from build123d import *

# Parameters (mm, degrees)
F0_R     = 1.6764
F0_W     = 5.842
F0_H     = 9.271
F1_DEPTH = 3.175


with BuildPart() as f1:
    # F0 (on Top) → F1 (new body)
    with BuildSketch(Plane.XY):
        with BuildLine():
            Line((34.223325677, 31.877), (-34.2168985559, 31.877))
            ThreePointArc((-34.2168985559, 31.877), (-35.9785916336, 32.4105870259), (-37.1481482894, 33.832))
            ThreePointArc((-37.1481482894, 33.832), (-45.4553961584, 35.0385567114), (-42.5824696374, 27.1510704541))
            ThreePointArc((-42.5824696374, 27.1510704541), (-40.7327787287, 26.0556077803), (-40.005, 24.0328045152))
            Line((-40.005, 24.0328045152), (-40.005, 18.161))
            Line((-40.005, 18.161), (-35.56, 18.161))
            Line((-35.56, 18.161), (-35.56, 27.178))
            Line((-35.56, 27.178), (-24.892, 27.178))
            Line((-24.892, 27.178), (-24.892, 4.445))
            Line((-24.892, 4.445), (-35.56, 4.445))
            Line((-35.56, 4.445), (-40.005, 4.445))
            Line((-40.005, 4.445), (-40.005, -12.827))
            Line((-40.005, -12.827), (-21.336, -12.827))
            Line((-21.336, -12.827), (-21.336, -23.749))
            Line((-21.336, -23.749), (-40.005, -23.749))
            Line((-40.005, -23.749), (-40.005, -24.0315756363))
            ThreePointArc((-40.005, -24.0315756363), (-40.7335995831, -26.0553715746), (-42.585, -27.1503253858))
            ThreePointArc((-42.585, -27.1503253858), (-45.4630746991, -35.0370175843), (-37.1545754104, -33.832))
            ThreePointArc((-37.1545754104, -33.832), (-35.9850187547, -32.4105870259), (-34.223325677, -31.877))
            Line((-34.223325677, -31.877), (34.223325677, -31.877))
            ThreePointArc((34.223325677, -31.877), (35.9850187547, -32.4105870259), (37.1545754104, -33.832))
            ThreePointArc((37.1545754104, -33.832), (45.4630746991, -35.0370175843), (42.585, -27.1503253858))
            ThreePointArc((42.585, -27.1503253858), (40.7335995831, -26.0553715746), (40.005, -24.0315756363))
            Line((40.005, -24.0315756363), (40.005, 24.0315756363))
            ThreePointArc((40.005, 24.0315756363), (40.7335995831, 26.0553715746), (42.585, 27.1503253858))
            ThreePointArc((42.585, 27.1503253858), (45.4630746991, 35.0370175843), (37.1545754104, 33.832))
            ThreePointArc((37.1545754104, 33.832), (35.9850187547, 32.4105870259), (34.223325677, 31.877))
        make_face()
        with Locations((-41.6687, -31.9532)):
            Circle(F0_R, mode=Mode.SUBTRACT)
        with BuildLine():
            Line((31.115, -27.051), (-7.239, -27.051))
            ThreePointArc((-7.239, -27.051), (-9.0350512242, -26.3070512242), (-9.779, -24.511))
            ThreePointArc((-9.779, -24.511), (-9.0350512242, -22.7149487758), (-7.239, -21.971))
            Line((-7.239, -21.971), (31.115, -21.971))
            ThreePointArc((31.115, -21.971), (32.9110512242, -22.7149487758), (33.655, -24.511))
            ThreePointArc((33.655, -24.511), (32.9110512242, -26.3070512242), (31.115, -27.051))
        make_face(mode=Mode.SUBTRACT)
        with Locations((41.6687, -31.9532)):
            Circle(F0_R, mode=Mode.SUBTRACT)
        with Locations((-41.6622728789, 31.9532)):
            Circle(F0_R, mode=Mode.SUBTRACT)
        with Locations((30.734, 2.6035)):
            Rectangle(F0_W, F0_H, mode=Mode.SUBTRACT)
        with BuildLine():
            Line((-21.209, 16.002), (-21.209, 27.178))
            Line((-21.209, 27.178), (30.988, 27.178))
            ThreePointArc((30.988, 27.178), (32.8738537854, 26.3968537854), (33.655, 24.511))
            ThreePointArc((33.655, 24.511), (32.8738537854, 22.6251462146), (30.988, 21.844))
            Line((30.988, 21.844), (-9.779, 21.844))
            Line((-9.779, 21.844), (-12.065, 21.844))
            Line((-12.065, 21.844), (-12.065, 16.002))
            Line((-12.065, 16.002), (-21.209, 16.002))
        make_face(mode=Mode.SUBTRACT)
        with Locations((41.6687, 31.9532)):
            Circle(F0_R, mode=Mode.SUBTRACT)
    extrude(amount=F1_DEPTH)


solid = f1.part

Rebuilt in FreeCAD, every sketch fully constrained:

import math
import FreeCAD as App
import Part
import Sketcher

V = App.Vector
Q = App.Units.Quantity


def add_polygon(sketch, points):
    """Adds a closed chain of lines whose ends are joined by coincident constraints."""
    first, n = sketch.GeometryCount, len(points)
    for a, b in zip(points, points[1:] + points[:1]):
        sketch.addGeometry(Part.LineSegment(App.Vector(*a, 0), App.Vector(*b, 0)), False)
    for i in range(n):
        sketch.addConstraint(Sketcher.Constraint("Coincident", first + i, 2, first + (i + 1) % n, 1))

doc = App.newDocument("Part")
params = doc.addObject("Spreadsheet::Sheet", "Params")
for row, (alias, value) in enumerate([
    ("sketch1_radius", "0.1 in"),
    ("sketch1_diameter", "0.132 in"),
    ("sketch1_radius2", "0.125 in"),
    ("sketch1_radius3", "0.105 in"),
    ("sketch1_width", "0.42 in"),
    ("pad1_length", "0.125 in"),
], start=1):
    params.set(f"A{row}", alias)
    params.set(f"B{row}", "=" + value)
    params.setAlias(f"B{row}", alias)

body = doc.addObject("PartDesign::Body", "Body")

# Sketch on XY plane
sketch1 = body.newObject("Sketcher::SketchObject", "Sketch")
sketch1.AttachmentSupport = (doc.getObject("XY_Plane"), [""])
sketch1.MapMode = "FlatFace"
sketch1.addGeometry(Part.LineSegment(V(34.223326, 31.877, 0), V(-34.216899, 31.877, 0)), False)  # 0
sketch1.addGeometry(Part.ArcOfCircle(Part.Circle(V(-34.216899, 35.052, 0), V(0, 0, 1), 3.175), math.radians(-157.402691), math.radians(-90)), False)  # 1
sketch1.addGeometry(Part.ArcOfCircle(Part.Circle(V(-41.662273, 31.9532, 0), V(0, 0, 1), 4.8895), math.radians(22.597309), math.radians(259.152328)), False)  # 2
sketch1.addGeometry(Part.ArcOfCircle(Part.Circle(V(-43.18, 24.032805, 0), V(0, 0, 1), 3.175), math.radians(0), math.radians(79.152328)), False)  # 3
sketch1.addGeometry(Part.LineSegment(V(-40.005, 24.032805, 0), V(-40.005, 18.161, 0)), False)  # 4
sketch1.addGeometry(Part.LineSegment(V(-40.005, 18.161, 0), V(-35.56, 18.161, 0)), False)  # 5
sketch1.addGeometry(Part.LineSegment(V(-35.56, 18.161, 0), V(-35.56, 27.178, 0)), False)  # 6
sketch1.addGeometry(Part.LineSegment(V(-35.56, 27.178, 0), V(-24.892, 27.178, 0)), False)  # 7
sketch1.addGeometry(Part.LineSegment(V(-24.892, 27.178, 0), V(-24.892, 4.445, 0)), False)  # 8
sketch1.addGeometry(Part.LineSegment(V(-24.892, 4.445, 0), V(-40.005, 4.445, 0)), False)  # 9
sketch1.addGeometry(Part.LineSegment(V(-40.005, 4.445, 0), V(-40.005, -12.827, 0)), False)  # 10
sketch1.addGeometry(Part.LineSegment(V(-40.005, -12.827, 0), V(-21.336, -12.827, 0)), False)  # 11
sketch1.addGeometry(Part.LineSegment(V(-21.336, -12.827, 0), V(-21.336, -23.749, 0)), False)  # 12
sketch1.addGeometry(Part.LineSegment(V(-21.336, -23.749, 0), V(-40.005, -23.749, 0)), False)  # 13
sketch1.addGeometry(Part.LineSegment(V(-40.005, -23.749, 0), V(-40.005, -24.031576, 0)), False)  # 14
sketch1.addGeometry(Part.ArcOfCircle(Part.Circle(V(-43.18, -24.031576, 0), V(0, 0, 1), 3.175), math.radians(-79.198818), math.radians(0)), False)  # 15
sketch1.addGeometry(Part.ArcOfCircle(Part.Circle(V(-41.6687, -31.9532, 0), V(0, 0, 1), 4.8895), math.radians(100.801182), math.radians(337.402691)), False)  # 16
sketch1.addGeometry(Part.ArcOfCircle(Part.Circle(V(-34.223326, -35.052, 0), V(0, 0, 1), 3.175), math.radians(90), math.radians(157.402691)), False)  # 17
sketch1.addGeometry(Part.LineSegment(V(-34.223326, -31.877, 0), V(34.223326, -31.877, 0)), False)  # 18
sketch1.addGeometry(Part.ArcOfCircle(Part.Circle(V(34.223326, -35.052, 0), V(0, 0, 1), 3.175), math.radians(22.597309), math.radians(90)), False)  # 19
sketch1.addGeometry(Part.ArcOfCircle(Part.Circle(V(41.6687, -31.9532, 0), V(0, 0, 1), 4.8895), math.radians(-157.402691), math.radians(79.198818)), False)  # 20
sketch1.addGeometry(Part.ArcOfCircle(Part.Circle(V(43.18, -24.031576, 0), V(0, 0, 1), 3.175), math.radians(180), math.radians(259.198818)), False)  # 21
sketch1.addGeometry(Part.LineSegment(V(40.005, -24.031576, 0), V(40.005, 24.031576, 0)), False)  # 22
sketch1.addGeometry(Part.ArcOfCircle(Part.Circle(V(43.18, 24.031576, 0), V(0, 0, 1), 3.175), math.radians(100.801182), math.radians(180)), False)  # 23
sketch1.addGeometry(Part.ArcOfCircle(Part.Circle(V(41.6687, 31.9532, 0), V(0, 0, 1), 4.8895), math.radians(-79.198818), math.radians(157.402691)), False)  # 24
sketch1.addGeometry(Part.ArcOfCircle(Part.Circle(V(34.223326, 35.052, 0), V(0, 0, 1), 3.175), math.radians(-90), math.radians(-22.597309)), False)  # 25
sketch1.addGeometry(Part.Circle(V(-41.6687, -31.9532, 0), V(0, 0, 1), 1.6764), False)  # 26
sketch1.addGeometry(Part.ArcOfCircle(Part.Circle(V(31.115, -24.511, 0), V(0, 0, 1), 2.54), math.radians(-90), math.radians(0)), False)  # 27
sketch1.addGeometry(Part.LineSegment(V(31.115, -27.051, 0), V(-7.239, -27.051, 0)), False)  # 28
sketch1.addGeometry(Part.ArcOfCircle(Part.Circle(V(-7.239, -24.511, 0), V(0, 0, 1), 2.54), math.radians(180), math.radians(270)), False)  # 29
sketch1.addGeometry(Part.ArcOfCircle(Part.Circle(V(-7.239, -24.511, 0), V(0, 0, 1), 2.54), math.radians(90), math.radians(180)), False)  # 30
sketch1.addGeometry(Part.LineSegment(V(-7.239, -21.971, 0), V(31.115, -21.971, 0)), False)  # 31
sketch1.addGeometry(Part.ArcOfCircle(Part.Circle(V(31.115, -24.511, 0), V(0, 0, 1), 2.54), math.radians(0), math.radians(90)), False)  # 32
sketch1.addGeometry(Part.Circle(V(41.6687, -31.9532, 0), V(0, 0, 1), 1.6764), False)  # 33
sketch1.addGeometry(Part.Circle(V(-41.662273, 31.9532, 0), V(0, 0, 1), 1.6764), False)  # 34
add_polygon(sketch1, [(33.655, -2.032), (27.813, -2.032), (27.813, 7.239), (33.655, 7.239)])  # lines 35-38
sketch1.addGeometry(Part.LineSegment(V(-12.065, 16.002, 0), V(-21.209, 16.002, 0)), False)  # 39
sketch1.addGeometry(Part.LineSegment(V(-21.209, 16.002, 0), V(-21.209, 27.178, 0)), False)  # 40
sketch1.addGeometry(Part.LineSegment(V(-21.209, 27.178, 0), V(30.988, 27.178, 0)), False)  # 41
sketch1.addGeometry(Part.ArcOfCircle(Part.Circle(V(30.988, 24.511, 0), V(0, 0, 1), 2.667), math.radians(0), math.radians(90)), False)  # 42
sketch1.addGeometry(Part.ArcOfCircle(Part.Circle(V(30.988, 24.511, 0), V(0, 0, 1), 2.667), math.radians(-90), math.radians(0)), False)  # 43
sketch1.addGeometry(Part.LineSegment(V(30.988, 21.844, 0), V(-12.065, 21.844, 0)), False)  # 44
sketch1.addGeometry(Part.LineSegment(V(-12.065, 21.844, 0), V(-12.065, 16.002, 0)), False)  # 45
sketch1.addGeometry(Part.Circle(V(41.6687, 31.9532, 0), V(0, 0, 1), 1.6764), False)  # 46
sketch1.addConstraint(Sketcher.Constraint("Tangent", 0, 2, 1, 2))
sketch1.addConstraint(Sketcher.Constraint("Tangent", 1, 1, 2, 1))
sketch1.addConstraint(Sketcher.Constraint("Tangent", 2, 2, 3, 2))
sketch1.addConstraint(Sketcher.Constraint("Tangent", 3, 1, 4, 1))
sketch1.addConstraint(Sketcher.Constraint("Coincident", 4, 2, 5, 1))
sketch1.addConstraint(Sketcher.Constraint("Coincident", 5, 2, 6, 1))
sketch1.addConstraint(Sketcher.Constraint("Coincident", 6, 2, 7, 1))
sketch1.addConstraint(Sketcher.Constraint("Coincident", 7, 2, 8, 1))
sketch1.addConstraint(Sketcher.Constraint("Coincident", 8, 2, 9, 1))
sketch1.addConstraint(Sketcher.Constraint("Coincident", 9, 2, 10, 1))
sketch1.addConstraint(Sketcher.Constraint("Coincident", 10, 2, 11, 1))
sketch1.addConstraint(Sketcher.Constraint("Coincident", 11, 2, 12, 1))
sketch1.addConstraint(Sketcher.Constraint("Coincident", 12, 2, 13, 1))
sketch1.addConstraint(Sketcher.Constraint("Coincident", 13, 2, 14, 1))
sketch1.addConstraint(Sketcher.Constraint("Tangent", 14, 2, 15, 2))
sketch1.addConstraint(Sketcher.Constraint("Tangent", 15, 1, 16, 1))
sketch1.addConstraint(Sketcher.Constraint("Tangent", 16, 2, 17, 2))
sketch1.addConstraint(Sketcher.Constraint("Tangent", 17, 1, 18, 1))
sketch1.addConstraint(Sketcher.Constraint("Tangent", 18, 2, 19, 2))
sketch1.addConstraint(Sketcher.Constraint("Tangent", 19, 1, 20, 1))
sketch1.addConstraint(Sketcher.Constraint("Tangent", 20, 2, 21, 2))
sketch1.addConstraint(Sketcher.Constraint("Tangent", 21, 1, 22, 1))
sketch1.addConstraint(Sketcher.Constraint("Tangent", 22, 2, 23, 2))
sketch1.addConstraint(Sketcher.Constraint("Tangent", 23, 1, 24, 1))
sketch1.addConstraint(Sketcher.Constraint("Tangent", 24, 2, 25, 2))
sketch1.addConstraint(Sketcher.Constraint("Tangent", 25, 1, 0, 1))
sketch1.addConstraint(Sketcher.Constraint("Tangent", 27, 1, 28, 1))
sketch1.addConstraint(Sketcher.Constraint("Tangent", 28, 2, 29, 2))
sketch1.addConstraint(Sketcher.Constraint("Tangent", 29, 1, 30, 2))
sketch1.addConstraint(Sketcher.Constraint("Tangent", 30, 1, 31, 1))
sketch1.addConstraint(Sketcher.Constraint("Tangent", 31, 2, 32, 2))
sketch1.addConstraint(Sketcher.Constraint("Tangent", 32, 1, 27, 2))
sketch1.addConstraint(Sketcher.Constraint("Coincident", 39, 2, 40, 1))
sketch1.addConstraint(Sketcher.Constraint("Coincident", 40, 2, 41, 1))
sketch1.addConstraint(Sketcher.Constraint("Tangent", 41, 2, 42, 2))
sketch1.addConstraint(Sketcher.Constraint("Tangent", 42, 1, 43, 2))
sketch1.addConstraint(Sketcher.Constraint("Tangent", 43, 1, 44, 1))
sketch1.addConstraint(Sketcher.Constraint("Coincident", 44, 2, 45, 1))
sketch1.addConstraint(Sketcher.Constraint("Coincident", 45, 2, 39, 1))
sketch1.addConstraint(Sketcher.Constraint("Horizontal", 0))
sketch1.addConstraint(Sketcher.Constraint("Vertical", 4))
sketch1.addConstraint(Sketcher.Constraint("Horizontal", 5))
sketch1.addConstraint(Sketcher.Constraint("Vertical", 6))
sketch1.addConstraint(Sketcher.Constraint("Horizontal", 7))
sketch1.addConstraint(Sketcher.Constraint("Vertical", 8))
sketch1.addConstraint(Sketcher.Constraint("Horizontal", 9))
sketch1.addConstraint(Sketcher.Constraint("Vertical", 10))
sketch1.addConstraint(Sketcher.Constraint("Horizontal", 11))
sketch1.addConstraint(Sketcher.Constraint("Vertical", 12))
sketch1.addConstraint(Sketcher.Constraint("Horizontal", 13))
sketch1.addConstraint(Sketcher.Constraint("Vertical", 14))
sketch1.addConstraint(Sketcher.Constraint("Horizontal", 18))
sketch1.addConstraint(Sketcher.Constraint("Vertical", 22))
sketch1.addConstraint(Sketcher.Constraint("Horizontal", 28))
sketch1.addConstraint(Sketcher.Constraint("Horizontal", 31))
sketch1.addConstraint(Sketcher.Constraint("Horizontal", 35))
sketch1.addConstraint(Sketcher.Constraint("Vertical", 36))
sketch1.addConstraint(Sketcher.Constraint("Horizontal", 37))
sketch1.addConstraint(Sketcher.Constraint("Vertical", 38))
sketch1.addConstraint(Sketcher.Constraint("Horizontal", 39))
sketch1.addConstraint(Sketcher.Constraint("Vertical", 40))
sketch1.addConstraint(Sketcher.Constraint("Horizontal", 41))
sketch1.addConstraint(Sketcher.Constraint("Horizontal", 44))
sketch1.addConstraint(Sketcher.Constraint("Vertical", 45))
sketch1.addConstraint(Sketcher.Constraint("Coincident", 26, 3, 16, 3))
sketch1.addConstraint(Sketcher.Constraint("Coincident", 33, 3, 20, 3))
sketch1.addConstraint(Sketcher.Constraint("Coincident", 34, 3, 2, 3))
sketch1.addConstraint(Sketcher.Constraint("Coincident", 46, 3, 24, 3))
sketch1.addConstraint(Sketcher.Constraint("Equal", 1, 3))
sketch1.addConstraint(Sketcher.Constraint("Equal", 3, 15))
sketch1.addConstraint(Sketcher.Constraint("Equal", 2, 16))
sketch1.addConstraint(Sketcher.Constraint("Equal", 15, 17))
sketch1.addConstraint(Sketcher.Constraint("Equal", 17, 19))
sketch1.addConstraint(Sketcher.Constraint("Equal", 16, 20))
sketch1.addConstraint(Sketcher.Constraint("Equal", 19, 21))
sketch1.addConstraint(Sketcher.Constraint("Equal", 21, 23))
sketch1.addConstraint(Sketcher.Constraint("Equal", 20, 24))
sketch1.addConstraint(Sketcher.Constraint("Equal", 23, 25))
sketch1.addConstraint(Sketcher.Constraint("Equal", 27, 29))
sketch1.addConstraint(Sketcher.Constraint("Equal", 29, 30))
sketch1.addConstraint(Sketcher.Constraint("Equal", 26, 33))
sketch1.addConstraint(Sketcher.Constraint("Equal", 33, 34))
sketch1.addConstraint(Sketcher.Constraint("Equal", 42, 43))
sketch1.addConstraint(Sketcher.Constraint("Equal", 34, 46))
sketch1.addConstraint(Sketcher.Constraint("Symmetric", 15, 3, 23, 3, -1, 1))
sketch1.addConstraint(Sketcher.Constraint("Symmetric", 17, 3, 25, 3, -1, 1))
sketch1.addConstraint(Sketcher.Constraint("Symmetric", 16, 3, 20, 3, -2))
sketch1.addConstraint(Sketcher.Constraint("Symmetric", 32, 1, 42, 1, -1))
sketch1.addConstraint(Sketcher.Constraint("Horizontal", 2, 3, 24, 3))
sketch1.addConstraint(Sketcher.Constraint("Horizontal", 32, 3, 29, 1))
sketch1.addConstraint(Sketcher.Constraint("Horizontal", 29, 1, 32, 1))
sketch1.addConstraint(Sketcher.Constraint("Horizontal", 7, 2, 40, 2))
sketch1.addConstraint(Sketcher.Constraint("Horizontal", 43, 3, 42, 1))
sketch1.addConstraint(Sketcher.Constraint("Vertical", 3, 3, 15, 3))
sketch1.addConstraint(Sketcher.Constraint("Vertical", 4, 2, 9, 2))
sketch1.addConstraint(Sketcher.Constraint("Vertical", 32, 1, 37, 2))
sketch1.addConstraint(Sketcher.Constraint("Equal", 37, 45))
sketch1.addConstraint(Sketcher.Constraint("Radius", 27, Q("0.1 in")))
sketch1.addConstraint(Sketcher.Constraint("Diameter", 26, Q("0.132 in")))
sketch1.addConstraint(Sketcher.Constraint("Radius", 1, Q("0.125 in")))
sketch1.addConstraint(Sketcher.Constraint("Radius", 42, Q("0.105 in")))
sketch1.addConstraint(Sketcher.Constraint("DistanceX", 7, 1, 7, 2, Q("0.42 in")))
sketch1.addConstraint(Sketcher.Constraint("DistanceX", 28, 2, 28, 1, Q("1.51 in")))
sketch1.addConstraint(Sketcher.Constraint("DistanceX", 35, 2, 35, 1, Q("0.23 in")))
sketch1.addConstraint(Sketcher.Constraint("DistanceX", 39, 2, 39, 1, Q("0.36 in")))
sketch1.addConstraint(Sketcher.Constraint("DistanceY", 10, 2, 10, 1, Q("0.68 in")))
sketch1.addConstraint(Sketcher.Constraint("DistanceY", 12, 2, 12, 1, Q("0.43 in")))
sketch1.addConstraint(Sketcher.Constraint("DistanceX", 3, 3, -1, 1, Q("1.7 in")))
sketch1.addConstraint(Sketcher.Constraint("DistanceX", 5, 2, -1, 1, Q("1.4 in")))
sketch1.addConstraint(Sketcher.Constraint("Radius", 2, Q("0.1925 in")))
sketch1.addConstraint(Sketcher.Constraint("DistanceX", 11, 1, 11, 2, Q("0.735 in")))
sketch1.addConstraint(Sketcher.Constraint("DistanceX", 41, 1, 41, 2, Q("2.055 in")))
sketch1.addConstraint(Sketcher.Constraint("DistanceY", 6, 1, 6, 2, Q("0.355 in")))
sketch1.addConstraint(Sketcher.Constraint("DistanceY", 8, 2, 8, 1, Q("0.895 in")))
sketch1.addConstraint(Sketcher.Constraint("DistanceY", 36, 1, 36, 2, Q("0.365 in")))
sketch1.addConstraint(Sketcher.Constraint("DistanceY", -1, 1, 1, 3, Q("1.38 in")))
sketch1.addConstraint(Sketcher.Constraint("DistanceX", -1, 1, 42, 3, Q("1.22 in")))
sketch1.addConstraint(Sketcher.Constraint("DistanceY", -1, 1, 6, 2, Q("1.07 in")))
sketch1.addConstraint(Sketcher.Constraint("DistanceY", 35, 2, -1, 1, Q("0.08 in")))
sketch1.addConstraint(Sketcher.Constraint("DistanceY", -1, 1, 2, 3, Q("1.258 in")))
sketch1.addConstraint(Sketcher.Constraint("DistanceX", 16, 3, -1, 1, Q("1.6405 in")))
sketch1.addConstraint(Sketcher.Constraint("DistanceX", 1, 3, -1, 1, Q("34.216899 mm")))
sketch1.setExpression("Constraints[101]", "Params.sketch1_radius")
sketch1.setExpression("Constraints[102]", "Params.sketch1_diameter")
sketch1.setExpression("Constraints[103]", "Params.sketch1_radius2")
sketch1.setExpression("Constraints[104]", "Params.sketch1_radius3")
sketch1.setExpression("Constraints[105]", "Params.sketch1_width")
pad1 = body.newObject("PartDesign::Pad", "Pad")
pad1.Profile = sketch1
pad1.setExpression("Length", "Params.pad1_length")

doc.recompute()
